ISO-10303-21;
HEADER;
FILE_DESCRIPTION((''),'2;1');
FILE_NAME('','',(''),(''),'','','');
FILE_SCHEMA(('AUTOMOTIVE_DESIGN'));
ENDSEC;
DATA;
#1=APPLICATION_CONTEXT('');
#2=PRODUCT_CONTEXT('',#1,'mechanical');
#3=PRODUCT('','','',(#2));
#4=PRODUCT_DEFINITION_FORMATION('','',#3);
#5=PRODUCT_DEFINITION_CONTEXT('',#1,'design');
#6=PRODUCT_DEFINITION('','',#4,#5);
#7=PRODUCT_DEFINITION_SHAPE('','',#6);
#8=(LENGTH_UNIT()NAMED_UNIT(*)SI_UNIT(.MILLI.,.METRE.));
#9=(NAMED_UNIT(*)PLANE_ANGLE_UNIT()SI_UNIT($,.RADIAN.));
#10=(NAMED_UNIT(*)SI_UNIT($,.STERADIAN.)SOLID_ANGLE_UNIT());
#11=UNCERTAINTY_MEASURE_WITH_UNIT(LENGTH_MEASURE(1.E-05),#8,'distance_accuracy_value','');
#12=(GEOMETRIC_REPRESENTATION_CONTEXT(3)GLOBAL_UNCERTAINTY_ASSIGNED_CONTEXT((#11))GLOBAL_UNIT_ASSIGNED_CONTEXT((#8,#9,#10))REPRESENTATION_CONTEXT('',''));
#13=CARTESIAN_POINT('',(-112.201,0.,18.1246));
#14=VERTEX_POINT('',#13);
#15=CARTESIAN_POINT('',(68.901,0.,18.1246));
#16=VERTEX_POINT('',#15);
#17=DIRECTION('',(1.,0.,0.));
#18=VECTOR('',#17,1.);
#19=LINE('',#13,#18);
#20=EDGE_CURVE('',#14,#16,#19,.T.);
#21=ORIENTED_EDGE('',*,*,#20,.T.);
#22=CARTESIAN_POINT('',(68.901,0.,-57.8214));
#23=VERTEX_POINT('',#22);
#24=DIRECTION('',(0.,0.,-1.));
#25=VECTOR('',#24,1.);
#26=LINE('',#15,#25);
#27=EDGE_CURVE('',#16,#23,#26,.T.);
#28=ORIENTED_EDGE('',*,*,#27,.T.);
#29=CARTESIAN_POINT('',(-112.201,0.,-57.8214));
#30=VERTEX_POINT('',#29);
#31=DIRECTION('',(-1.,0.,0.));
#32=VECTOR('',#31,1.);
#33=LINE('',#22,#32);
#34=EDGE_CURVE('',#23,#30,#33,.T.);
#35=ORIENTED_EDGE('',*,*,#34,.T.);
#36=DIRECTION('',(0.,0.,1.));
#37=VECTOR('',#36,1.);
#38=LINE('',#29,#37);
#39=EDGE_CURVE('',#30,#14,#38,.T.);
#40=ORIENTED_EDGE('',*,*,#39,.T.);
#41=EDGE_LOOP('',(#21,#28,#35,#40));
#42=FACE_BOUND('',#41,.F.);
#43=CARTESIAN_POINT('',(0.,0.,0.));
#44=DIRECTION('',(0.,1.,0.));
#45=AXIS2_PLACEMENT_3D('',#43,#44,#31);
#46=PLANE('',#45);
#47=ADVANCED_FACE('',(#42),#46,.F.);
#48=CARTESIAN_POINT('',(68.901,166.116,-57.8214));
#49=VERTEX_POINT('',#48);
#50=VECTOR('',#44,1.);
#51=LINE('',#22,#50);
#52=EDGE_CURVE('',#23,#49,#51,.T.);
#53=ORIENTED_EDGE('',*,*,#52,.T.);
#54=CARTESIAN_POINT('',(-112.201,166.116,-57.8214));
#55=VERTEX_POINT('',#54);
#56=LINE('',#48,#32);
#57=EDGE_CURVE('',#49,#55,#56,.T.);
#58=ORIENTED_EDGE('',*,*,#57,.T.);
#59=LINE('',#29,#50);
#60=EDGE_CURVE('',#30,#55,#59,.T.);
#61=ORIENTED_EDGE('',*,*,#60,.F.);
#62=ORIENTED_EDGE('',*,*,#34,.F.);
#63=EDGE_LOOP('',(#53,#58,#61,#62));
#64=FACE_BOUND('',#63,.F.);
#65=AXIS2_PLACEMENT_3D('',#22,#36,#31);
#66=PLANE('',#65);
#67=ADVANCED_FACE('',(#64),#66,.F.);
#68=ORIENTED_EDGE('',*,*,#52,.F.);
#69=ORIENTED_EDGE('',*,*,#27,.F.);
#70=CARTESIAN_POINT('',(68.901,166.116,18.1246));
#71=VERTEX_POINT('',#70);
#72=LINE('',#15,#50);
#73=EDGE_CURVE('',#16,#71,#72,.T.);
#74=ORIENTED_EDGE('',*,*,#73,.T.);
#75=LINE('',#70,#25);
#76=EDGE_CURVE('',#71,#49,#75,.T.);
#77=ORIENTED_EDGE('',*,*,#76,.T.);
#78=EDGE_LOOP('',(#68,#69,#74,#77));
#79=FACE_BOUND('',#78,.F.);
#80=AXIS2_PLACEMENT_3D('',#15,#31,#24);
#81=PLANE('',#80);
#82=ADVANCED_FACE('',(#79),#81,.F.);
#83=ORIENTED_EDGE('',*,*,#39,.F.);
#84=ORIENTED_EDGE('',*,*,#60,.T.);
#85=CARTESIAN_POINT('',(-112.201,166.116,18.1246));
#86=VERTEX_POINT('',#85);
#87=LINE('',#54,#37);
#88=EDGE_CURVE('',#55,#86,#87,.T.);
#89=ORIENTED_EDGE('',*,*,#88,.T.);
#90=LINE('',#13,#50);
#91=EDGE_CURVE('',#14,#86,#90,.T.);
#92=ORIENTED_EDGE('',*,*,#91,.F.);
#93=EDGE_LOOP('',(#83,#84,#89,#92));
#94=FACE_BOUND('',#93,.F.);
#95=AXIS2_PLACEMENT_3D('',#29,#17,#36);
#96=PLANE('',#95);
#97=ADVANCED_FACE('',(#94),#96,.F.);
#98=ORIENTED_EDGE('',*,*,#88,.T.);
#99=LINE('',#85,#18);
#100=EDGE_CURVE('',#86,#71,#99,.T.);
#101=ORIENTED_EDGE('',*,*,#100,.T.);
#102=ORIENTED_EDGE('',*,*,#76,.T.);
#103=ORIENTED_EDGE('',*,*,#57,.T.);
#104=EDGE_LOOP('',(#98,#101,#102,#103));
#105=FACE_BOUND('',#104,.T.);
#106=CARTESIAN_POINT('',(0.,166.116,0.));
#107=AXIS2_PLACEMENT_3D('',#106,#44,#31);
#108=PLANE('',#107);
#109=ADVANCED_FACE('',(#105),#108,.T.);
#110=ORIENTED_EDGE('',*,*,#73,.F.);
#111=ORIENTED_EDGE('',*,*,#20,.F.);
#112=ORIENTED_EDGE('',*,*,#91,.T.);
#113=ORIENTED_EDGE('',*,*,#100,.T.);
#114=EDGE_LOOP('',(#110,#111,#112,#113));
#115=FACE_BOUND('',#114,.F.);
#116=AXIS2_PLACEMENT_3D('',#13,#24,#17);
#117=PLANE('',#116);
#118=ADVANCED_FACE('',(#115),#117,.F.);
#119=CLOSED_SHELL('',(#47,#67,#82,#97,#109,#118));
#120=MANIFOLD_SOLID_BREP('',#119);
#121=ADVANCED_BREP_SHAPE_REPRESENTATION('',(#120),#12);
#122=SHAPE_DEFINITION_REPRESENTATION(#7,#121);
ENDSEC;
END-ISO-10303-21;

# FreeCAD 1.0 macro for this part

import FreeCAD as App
import Part
import Sketcher
Q = App.Units.Quantity


def add_polygon(sketch, points):
    """Adds a closed chain of lines whose ends are joined by coincident constraints."""
    first, n = sketch.GeometryCount, len(points)
    for a, b in zip(points, points[1:] + points[:1]):
        sketch.addGeometry(Part.LineSegment(App.Vector(*a, 0), App.Vector(*b, 0)), False)
    for i in range(n):
        sketch.addConstraint(Sketcher.Constraint("Coincident", first + i, 2, first + (i + 1) % n, 1))

doc = App.newDocument("Part")
body = doc.addObject("PartDesign::Body", "Body")

# Sketch on XZ plane
sketch1 = body.newObject("Sketcher::SketchObject", "Sketch")
sketch1.AttachmentSupport = (doc.getObject("XZ_Plane"), [""])
sketch1.MapMode = "FlatFace"
add_polygon(sketch1, [(-112.201, -57.8214), (-112.201, 18.1246), (68.901, 18.1246), (68.901, -57.8214)])  # lines 0-3
sketch1.addConstraint([
    Sketcher.Constraint("Vertical", 0),
    Sketcher.Constraint("Horizontal", 1),
    Sketcher.Constraint("Vertical", 2),
    Sketcher.Constraint("Horizontal", 3),
    Sketcher.Constraint("DistanceX", 1, 1, 1, 2, Q("7.13 in")),
    Sketcher.Constraint("DistanceY", 0, 1, 0, 2, Q("2.99 in")),
    Sketcher.Constraint("DistanceX", 0, 2, -1, 1, 112.201),
    Sketcher.Constraint("DistanceY", -1, 1, 0, 2, 18.1246),
])
pad1 = body.newObject("PartDesign::Pad", "Pad")
pad1.Profile = sketch1
pad1.Length = Q("6.54 in")
pad1.Reversed = True

doc.recompute()
